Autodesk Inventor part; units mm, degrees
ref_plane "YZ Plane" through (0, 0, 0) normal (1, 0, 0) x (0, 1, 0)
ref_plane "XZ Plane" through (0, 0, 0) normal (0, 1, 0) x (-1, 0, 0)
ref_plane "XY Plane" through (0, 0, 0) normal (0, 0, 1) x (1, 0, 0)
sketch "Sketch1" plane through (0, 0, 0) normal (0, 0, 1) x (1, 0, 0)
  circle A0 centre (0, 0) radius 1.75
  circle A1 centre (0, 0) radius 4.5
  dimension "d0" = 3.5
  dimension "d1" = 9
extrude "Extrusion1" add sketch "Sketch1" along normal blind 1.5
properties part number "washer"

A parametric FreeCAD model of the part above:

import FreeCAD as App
import Part
import Sketcher

doc = App.newDocument("Part")
body = doc.addObject("PartDesign::Body", "Body")

sketch1 = doc.addObject("Sketcher::SketchObject", "Sketch")
body.addObject(sketch1)
sketch1.AttachmentSupport = (doc.XY_Plane, [""])
sketch1.MapMode = "FlatFace"
sketch1.addGeometry(Part.Circle(App.Vector(0, 0, 0), App.Vector(0, 0, 1), 4.5), False)
sketch1.addGeometry(Part.Circle(App.Vector(0, 0, 0), App.Vector(0, 0, 1), 1.8), False)
sketch1.addConstraint(Sketcher.Constraint("Coincident", 0, 3, -1, 1))
sketch1.addConstraint(Sketcher.Constraint("Coincident", 1, 3, -1, 1))
sketch1.addConstraint(Sketcher.Constraint("Diameter", 0, 9.0))
sketch1.addConstraint(Sketcher.Constraint("Diameter", 1, 3.5))
pad1 = doc.addObject("PartDesign::Pad", "Pad")
body.addObject(pad1)
pad1.Profile = sketch1
pad1.Length = 1.5

doc.recompute()
